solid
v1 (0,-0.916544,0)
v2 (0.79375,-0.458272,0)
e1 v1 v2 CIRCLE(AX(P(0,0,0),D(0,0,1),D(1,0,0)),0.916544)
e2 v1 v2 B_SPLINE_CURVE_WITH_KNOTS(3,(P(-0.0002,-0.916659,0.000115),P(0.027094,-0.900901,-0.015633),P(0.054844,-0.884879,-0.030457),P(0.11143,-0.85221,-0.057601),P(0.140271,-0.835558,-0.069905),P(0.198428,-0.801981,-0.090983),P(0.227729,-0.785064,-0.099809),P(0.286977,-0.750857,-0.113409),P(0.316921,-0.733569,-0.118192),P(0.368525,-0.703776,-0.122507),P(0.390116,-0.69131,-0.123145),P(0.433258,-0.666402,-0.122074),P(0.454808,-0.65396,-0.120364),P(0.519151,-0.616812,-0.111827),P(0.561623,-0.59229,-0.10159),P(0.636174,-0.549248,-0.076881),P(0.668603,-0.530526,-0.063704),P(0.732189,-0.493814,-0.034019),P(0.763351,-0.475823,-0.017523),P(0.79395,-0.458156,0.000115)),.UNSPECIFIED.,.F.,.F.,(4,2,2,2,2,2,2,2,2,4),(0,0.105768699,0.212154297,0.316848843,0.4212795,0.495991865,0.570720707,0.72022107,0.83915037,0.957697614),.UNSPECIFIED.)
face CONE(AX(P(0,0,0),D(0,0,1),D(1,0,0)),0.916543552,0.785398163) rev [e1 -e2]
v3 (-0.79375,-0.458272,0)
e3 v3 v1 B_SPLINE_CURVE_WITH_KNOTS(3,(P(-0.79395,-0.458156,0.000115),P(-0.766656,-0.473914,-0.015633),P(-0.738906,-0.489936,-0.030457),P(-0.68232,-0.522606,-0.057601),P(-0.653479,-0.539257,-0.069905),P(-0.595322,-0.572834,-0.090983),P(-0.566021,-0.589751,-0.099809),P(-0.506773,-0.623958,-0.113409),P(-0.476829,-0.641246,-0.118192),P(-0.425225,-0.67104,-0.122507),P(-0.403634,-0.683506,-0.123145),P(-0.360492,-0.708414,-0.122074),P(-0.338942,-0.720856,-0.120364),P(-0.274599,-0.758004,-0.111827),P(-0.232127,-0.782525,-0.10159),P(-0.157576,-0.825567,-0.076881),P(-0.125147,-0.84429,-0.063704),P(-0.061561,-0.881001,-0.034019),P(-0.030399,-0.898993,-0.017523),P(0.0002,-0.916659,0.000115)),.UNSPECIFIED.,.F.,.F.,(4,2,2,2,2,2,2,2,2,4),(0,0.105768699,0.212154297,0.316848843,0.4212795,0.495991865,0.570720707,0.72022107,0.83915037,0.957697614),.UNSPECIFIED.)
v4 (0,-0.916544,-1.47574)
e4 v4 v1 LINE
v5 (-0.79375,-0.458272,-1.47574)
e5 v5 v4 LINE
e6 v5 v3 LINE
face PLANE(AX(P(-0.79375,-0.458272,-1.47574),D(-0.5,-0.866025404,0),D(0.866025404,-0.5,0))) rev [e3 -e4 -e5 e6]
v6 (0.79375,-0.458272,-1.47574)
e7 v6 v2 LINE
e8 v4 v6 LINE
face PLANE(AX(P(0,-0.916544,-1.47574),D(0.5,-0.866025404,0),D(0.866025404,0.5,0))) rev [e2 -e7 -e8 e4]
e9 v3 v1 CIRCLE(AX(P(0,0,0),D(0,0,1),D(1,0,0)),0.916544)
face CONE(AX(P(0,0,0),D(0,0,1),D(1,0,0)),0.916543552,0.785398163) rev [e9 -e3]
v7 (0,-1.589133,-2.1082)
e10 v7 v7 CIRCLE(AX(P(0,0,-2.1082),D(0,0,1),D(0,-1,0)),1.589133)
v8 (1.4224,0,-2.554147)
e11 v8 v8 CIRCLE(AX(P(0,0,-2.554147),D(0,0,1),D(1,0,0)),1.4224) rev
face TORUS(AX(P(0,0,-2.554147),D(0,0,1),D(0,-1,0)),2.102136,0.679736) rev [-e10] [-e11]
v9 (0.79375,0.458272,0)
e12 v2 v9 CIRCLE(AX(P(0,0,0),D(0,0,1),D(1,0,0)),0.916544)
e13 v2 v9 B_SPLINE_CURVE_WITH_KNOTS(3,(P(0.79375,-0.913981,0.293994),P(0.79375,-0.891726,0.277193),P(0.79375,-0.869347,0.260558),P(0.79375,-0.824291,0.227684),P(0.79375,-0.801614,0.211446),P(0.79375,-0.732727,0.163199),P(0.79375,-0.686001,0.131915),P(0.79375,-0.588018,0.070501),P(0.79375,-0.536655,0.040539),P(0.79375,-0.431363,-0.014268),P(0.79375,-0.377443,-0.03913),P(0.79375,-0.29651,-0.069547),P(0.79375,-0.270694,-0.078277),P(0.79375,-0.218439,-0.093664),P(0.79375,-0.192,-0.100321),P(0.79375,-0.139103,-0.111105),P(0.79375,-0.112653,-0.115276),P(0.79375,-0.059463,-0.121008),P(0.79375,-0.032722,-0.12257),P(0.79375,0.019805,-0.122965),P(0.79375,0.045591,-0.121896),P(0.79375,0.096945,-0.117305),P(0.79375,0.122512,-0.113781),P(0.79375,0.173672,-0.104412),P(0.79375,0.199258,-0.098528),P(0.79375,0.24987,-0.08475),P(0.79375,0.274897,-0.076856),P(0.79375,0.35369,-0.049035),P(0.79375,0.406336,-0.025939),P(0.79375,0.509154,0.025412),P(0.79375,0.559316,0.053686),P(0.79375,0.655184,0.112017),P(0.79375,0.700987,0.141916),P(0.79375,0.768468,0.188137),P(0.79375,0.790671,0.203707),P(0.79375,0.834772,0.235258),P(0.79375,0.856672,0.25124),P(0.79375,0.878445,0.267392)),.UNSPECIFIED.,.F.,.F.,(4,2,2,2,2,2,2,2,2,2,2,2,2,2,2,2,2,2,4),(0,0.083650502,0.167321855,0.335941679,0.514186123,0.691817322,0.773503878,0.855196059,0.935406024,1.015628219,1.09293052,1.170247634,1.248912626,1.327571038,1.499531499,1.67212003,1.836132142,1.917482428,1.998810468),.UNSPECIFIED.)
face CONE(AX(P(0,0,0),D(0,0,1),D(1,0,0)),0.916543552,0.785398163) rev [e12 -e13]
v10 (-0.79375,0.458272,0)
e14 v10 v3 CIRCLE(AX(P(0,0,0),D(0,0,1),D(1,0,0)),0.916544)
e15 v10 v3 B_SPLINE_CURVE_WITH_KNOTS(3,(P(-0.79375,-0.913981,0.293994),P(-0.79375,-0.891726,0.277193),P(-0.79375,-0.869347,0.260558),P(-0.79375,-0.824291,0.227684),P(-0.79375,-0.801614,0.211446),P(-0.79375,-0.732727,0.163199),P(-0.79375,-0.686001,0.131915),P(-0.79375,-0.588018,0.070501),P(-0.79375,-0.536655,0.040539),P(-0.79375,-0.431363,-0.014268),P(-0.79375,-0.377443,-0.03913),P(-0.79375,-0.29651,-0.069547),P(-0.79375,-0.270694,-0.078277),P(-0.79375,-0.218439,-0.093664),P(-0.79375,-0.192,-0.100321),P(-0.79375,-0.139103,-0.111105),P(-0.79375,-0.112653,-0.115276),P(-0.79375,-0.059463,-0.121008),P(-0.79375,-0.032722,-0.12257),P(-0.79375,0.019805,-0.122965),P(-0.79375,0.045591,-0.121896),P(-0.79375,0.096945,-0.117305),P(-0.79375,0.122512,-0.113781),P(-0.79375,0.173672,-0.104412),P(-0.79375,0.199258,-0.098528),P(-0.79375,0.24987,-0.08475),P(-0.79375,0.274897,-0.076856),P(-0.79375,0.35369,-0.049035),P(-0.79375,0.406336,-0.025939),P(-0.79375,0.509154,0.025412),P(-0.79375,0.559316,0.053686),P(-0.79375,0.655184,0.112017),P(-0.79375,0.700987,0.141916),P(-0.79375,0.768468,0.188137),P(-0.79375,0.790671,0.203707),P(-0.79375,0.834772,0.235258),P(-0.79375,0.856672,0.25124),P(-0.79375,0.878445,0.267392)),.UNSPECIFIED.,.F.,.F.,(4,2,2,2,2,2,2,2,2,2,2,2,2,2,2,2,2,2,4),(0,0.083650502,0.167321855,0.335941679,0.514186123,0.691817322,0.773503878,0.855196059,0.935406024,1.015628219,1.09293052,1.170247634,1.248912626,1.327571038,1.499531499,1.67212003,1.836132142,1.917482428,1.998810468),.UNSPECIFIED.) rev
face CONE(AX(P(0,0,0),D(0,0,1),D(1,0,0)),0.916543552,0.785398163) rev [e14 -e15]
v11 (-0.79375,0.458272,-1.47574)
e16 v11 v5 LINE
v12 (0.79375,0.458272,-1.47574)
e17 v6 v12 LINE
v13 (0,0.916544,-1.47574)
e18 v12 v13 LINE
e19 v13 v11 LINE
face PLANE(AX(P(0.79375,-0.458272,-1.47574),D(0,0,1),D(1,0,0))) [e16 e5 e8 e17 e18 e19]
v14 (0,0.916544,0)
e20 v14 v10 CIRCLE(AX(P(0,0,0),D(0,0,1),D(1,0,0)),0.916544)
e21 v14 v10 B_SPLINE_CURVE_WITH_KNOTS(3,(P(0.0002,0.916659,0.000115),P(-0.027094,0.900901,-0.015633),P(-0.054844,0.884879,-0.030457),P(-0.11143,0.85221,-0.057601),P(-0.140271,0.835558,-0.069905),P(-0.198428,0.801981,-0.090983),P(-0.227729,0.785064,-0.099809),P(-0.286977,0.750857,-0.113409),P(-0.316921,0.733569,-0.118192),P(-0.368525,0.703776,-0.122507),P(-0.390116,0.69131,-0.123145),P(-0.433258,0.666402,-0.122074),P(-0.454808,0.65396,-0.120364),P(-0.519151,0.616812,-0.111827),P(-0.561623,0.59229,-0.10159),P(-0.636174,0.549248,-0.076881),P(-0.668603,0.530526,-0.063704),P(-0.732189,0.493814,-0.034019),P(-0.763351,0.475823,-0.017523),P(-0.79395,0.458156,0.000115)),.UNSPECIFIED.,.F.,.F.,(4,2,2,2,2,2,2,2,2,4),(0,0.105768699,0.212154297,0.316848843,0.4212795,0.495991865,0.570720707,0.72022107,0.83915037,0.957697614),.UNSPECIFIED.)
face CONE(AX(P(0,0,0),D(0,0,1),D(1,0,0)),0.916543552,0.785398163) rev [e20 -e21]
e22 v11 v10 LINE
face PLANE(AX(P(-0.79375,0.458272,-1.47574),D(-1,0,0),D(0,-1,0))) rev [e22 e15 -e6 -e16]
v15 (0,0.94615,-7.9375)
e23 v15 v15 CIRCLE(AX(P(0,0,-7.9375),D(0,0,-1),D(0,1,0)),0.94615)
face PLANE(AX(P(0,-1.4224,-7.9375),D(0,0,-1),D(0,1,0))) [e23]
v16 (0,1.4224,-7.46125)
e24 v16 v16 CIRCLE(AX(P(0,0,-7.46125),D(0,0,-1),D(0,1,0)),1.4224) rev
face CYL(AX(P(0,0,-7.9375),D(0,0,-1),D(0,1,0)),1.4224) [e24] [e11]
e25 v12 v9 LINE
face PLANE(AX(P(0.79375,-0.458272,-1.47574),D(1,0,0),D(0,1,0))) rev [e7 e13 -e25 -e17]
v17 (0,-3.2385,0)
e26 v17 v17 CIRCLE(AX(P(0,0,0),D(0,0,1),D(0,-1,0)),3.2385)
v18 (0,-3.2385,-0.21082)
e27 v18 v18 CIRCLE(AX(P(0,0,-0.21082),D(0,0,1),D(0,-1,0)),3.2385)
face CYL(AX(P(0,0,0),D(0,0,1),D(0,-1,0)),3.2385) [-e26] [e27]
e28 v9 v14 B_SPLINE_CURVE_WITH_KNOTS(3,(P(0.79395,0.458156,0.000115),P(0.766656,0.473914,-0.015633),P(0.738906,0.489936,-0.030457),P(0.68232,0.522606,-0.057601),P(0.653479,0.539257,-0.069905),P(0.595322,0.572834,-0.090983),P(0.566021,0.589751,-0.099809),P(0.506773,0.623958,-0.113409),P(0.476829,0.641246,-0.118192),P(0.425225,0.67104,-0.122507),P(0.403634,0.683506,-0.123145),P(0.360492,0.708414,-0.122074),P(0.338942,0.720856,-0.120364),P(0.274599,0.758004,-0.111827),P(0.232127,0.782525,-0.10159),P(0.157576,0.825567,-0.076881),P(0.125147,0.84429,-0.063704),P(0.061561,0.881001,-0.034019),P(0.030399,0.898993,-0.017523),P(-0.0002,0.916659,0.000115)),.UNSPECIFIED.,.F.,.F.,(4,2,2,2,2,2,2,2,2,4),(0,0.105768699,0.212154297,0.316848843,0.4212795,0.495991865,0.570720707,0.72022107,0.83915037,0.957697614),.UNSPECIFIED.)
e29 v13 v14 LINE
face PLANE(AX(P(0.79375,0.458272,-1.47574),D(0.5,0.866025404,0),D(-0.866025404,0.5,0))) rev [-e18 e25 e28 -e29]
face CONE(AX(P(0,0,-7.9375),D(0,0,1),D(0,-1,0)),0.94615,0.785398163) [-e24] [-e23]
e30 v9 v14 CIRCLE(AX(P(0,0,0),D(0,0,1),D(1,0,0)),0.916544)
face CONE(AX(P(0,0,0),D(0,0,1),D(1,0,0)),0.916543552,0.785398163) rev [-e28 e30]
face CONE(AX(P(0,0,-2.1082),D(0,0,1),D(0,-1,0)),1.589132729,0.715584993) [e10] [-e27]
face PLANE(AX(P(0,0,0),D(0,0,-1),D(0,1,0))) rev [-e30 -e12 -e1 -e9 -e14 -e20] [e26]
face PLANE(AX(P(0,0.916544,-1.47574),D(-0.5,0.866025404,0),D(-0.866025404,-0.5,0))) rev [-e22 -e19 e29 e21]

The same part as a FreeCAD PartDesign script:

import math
import FreeCAD as App
import Part
import Sketcher

V = App.Vector
Q = App.Units.Quantity


def edges_at(feature, points):
    """Names of the edges that pass closest to the given points."""
    edges = feature.Shape.Edges
    near = lambda p: min(range(len(edges)), key=lambda i: edges[i].distToShape(Part.Vertex(*p))[0])
    return sorted({f"Edge{near(p) + 1}" for p in points})

doc = App.newDocument("Part")
body = doc.addObject("PartDesign::Body", "Body")

sketch1 = body.newObject("Sketcher::SketchObject", "Sketch")
sketch1.AttachmentSupport = (doc.getObject("YZ_Plane"), [""])
sketch1.MapMode = "FlatFace"
sketch1.addGeometry([
    Part.LineSegment(V(1.4, 0, 0), V(0, 0, 0)),
    Part.LineSegment(V(0, 0, 0), V(0, -7.9, 0)),
    Part.LineSegment(V(0, -7.9, 0), V(1.4, -7.9, 0)),
    Part.LineSegment(V(1.4, -7.9, 0), V(1.4, 0, 0)),
], False)
sketch1.addConstraint([
    Sketcher.Constraint("Coincident", 0, 2, 1, 1),
    Sketcher.Constraint("Coincident", 1, 2, 2, 1),
    Sketcher.Constraint("Coincident", 2, 2, 3, 1),
    Sketcher.Constraint("Coincident", 3, 2, 0, 1),
    Sketcher.Constraint("Horizontal", 0),
    Sketcher.Constraint("Vertical", 1),
    Sketcher.Constraint("Horizontal", 2),
    Sketcher.Constraint("Vertical", 3),
    Sketcher.Constraint("Coincident", 0, 2, -1, 1),
    Sketcher.Constraint("DistanceX", 0, 2, 0, 1, Q("0.056 in")),
    Sketcher.Constraint("DistanceY", 1, 2, 1, 1, Q("0.3125 in")),
])
revolution = body.newObject("PartDesign::Revolution", "Revolution")
revolution.Profile = sketch1
revolution.ReferenceAxis = (sketch1, ["V_Axis"])
revolution.Angle = 360
doc.recompute()

chamfer = body.newObject("PartDesign::Chamfer", "Chamfer")
chamfer.Base = (revolution, edges_at(revolution, [(0, -1.422, -7.938)]))
chamfer.Size = 0.47625
body2 = doc.addObject("PartDesign::Body", "Body001")

sketch2 = body2.newObject("Sketcher::SketchObject", "Sketch001")
sketch2.AttachmentSupport = (doc.getObject("YZ_Plane001"), [""])
sketch2.MapMode = "FlatFace"
sketch2.addGeometry([
    Part.LineSegment(V(3.24, -0.21, 0), V(3.24, 0, 0)),
    Part.LineSegment(V(3.24, 0, 0), V(0, 0, 0)),
    Part.LineSegment(V(0, 0, 0), V(0, -2.55, 0)),
    Part.LineSegment(V(0, -2.55, 0), V(1.42, -2.55, 0)),
    Part.ArcOfCircle(Part.Circle(V(2.1, -2.55, 0), V(0, 0, 1), 0.68), math.radians(139), math.radians(180)),
    Part.LineSegment(V(1.59, -2.11, 0), V(3.24, -0.21, 0)),
], False)
sketch2.addConstraint([
    Sketcher.Constraint("Coincident", 0, 2, 1, 1),
    Sketcher.Constraint("Coincident", 1, 2, 2, 1),
    Sketcher.Constraint("Coincident", 2, 2, 3, 1),
    Sketcher.Constraint("Coincident", 3, 2, 4, 2),
    Sketcher.Constraint("Tangent", 4, 1, 5, 1),
    Sketcher.Constraint("Coincident", 5, 2, 0, 1),
    Sketcher.Constraint("Vertical", 0),
    Sketcher.Constraint("Horizontal", 1),
    Sketcher.Constraint("Vertical", 2),
    Sketcher.Constraint("Horizontal", 3),
    Sketcher.Constraint("Coincident", 1, 2, -1, 1),
    Sketcher.Constraint("Horizontal", 4, 3, 2, 2),
    Sketcher.Constraint("Angle", 5, Q("49 deg")),
    Sketcher.Constraint("DistanceX", 3, 1, 3, 2, Q("0.056 in")),
    Sketcher.Constraint("DistanceX", 1, 2, 1, 1, Q("0.1275 in")),
    Sketcher.Constraint("DistanceY", 0, 1, 0, 2, Q("0.0083 in")),
    Sketcher.Constraint("DistanceY", 4, 1, -1, 1, Q("0.083 in")),
])
revolution2 = body2.newObject("PartDesign::Revolution", "Revolution001")
revolution2.Profile = sketch2
revolution2.ReferenceAxis = (sketch2, ["V_Axis"])
revolution2.Angle = 360

sketch3 = body2.newObject("Sketcher::SketchObject", "Sketch002")
sketch3.AttachmentSupport = (doc.getObject("YZ_Plane001"), [""])
sketch3.MapMode = "FlatFace"
sketch3.addGeometry([
    Part.LineSegment(V(0, -2.6, 0), V(-1.4, -2.6, 0)),
    Part.LineSegment(V(-1.4, -2.6, 0), V(0, -4, 0)),
    Part.LineSegment(V(0, -4, 0), V(0, -2.6, 0)),
], False)
sketch3.addConstraint([
    Sketcher.Constraint("Coincident", 0, 2, 1, 1),
    Sketcher.Constraint("Coincident", 1, 2, 2, 1),
    Sketcher.Constraint("Coincident", 2, 2, 0, 1),
    Sketcher.Constraint("Horizontal", 0),
    Sketcher.Constraint("Vertical", 2),
    Sketcher.Constraint("PointOnObject", 1, 2, -2),
    Sketcher.Constraint("Equal", 0, 2),
    Sketcher.Constraint("DistanceX", 0, 2, 0, 1, Q("0.056 in")),
    Sketcher.Constraint("DistanceY", 0, 2, -1, 1, 2.554147),
])
revolution3 = body2.newObject("PartDesign::Revolution", "Revolution002")
revolution3.Profile = sketch3
revolution3.ReferenceAxis = (sketch3, ["V_Axis"])
revolution3.Angle = 360
doc.recompute()

boolean = body2.newObject("PartDesign::Boolean", "Boolean")
boolean.Type = "Fuse"
boolean.addObjects([body])

sketch4 = body2.newObject("Sketcher::SketchObject", "Sketch003")
sketch4.AttachmentSupport = (doc.getObject("XY_Plane001"), [""])
sketch4.MapMode = "FlatFace"
sketch4.addGeometry([
    Part.LineSegment(V(0.8, -0.5, 0), V(0.8, 0.5, 0)),
    Part.LineSegment(V(0.8, 0.5, 0), V(0, 0.9, 0)),
    Part.LineSegment(V(0, 0.9, 0), V(-0.8, 0.5, 0)),
    Part.LineSegment(V(-0.8, 0.5, 0), V(-0.8, -0.5, 0)),
    Part.LineSegment(V(-0.8, -0.5, 0), V(0, -0.9, 0)),
    Part.LineSegment(V(0, -0.9, 0), V(0.8, -0.5, 0)),
], False)
sketch4.addConstraint([
    Sketcher.Constraint("Coincident", 0, 2, 1, 1),
    Sketcher.Constraint("Coincident", 1, 2, 2, 1),
    Sketcher.Constraint("Coincident", 2, 2, 3, 1),
    Sketcher.Constraint("Coincident", 3, 2, 4, 1),
    Sketcher.Constraint("Coincident", 4, 2, 5, 1),
    Sketcher.Constraint("Coincident", 5, 2, 0, 1),
    Sketcher.Constraint("Vertical", 0),
    Sketcher.Constraint("Vertical", 3),
    Sketcher.Constraint("Symmetric", 0, 2, 3, 2, -1, 1),
    Sketcher.Constraint("Symmetric", 1, 2, 4, 2, -1, 1),
    Sketcher.Constraint("PointOnObject", 1, 2, -2),
    Sketcher.Constraint("Parallel", 2, 5),
    Sketcher.Constraint("Horizontal", 0, 2, 2, 2),
    Sketcher.Constraint("Angle", 1, Q("150 deg")),
    Sketcher.Constraint("DistanceX", -1, 1, 0, 2, Q("0.03125 in")),
    Sketcher.Constraint("DistanceY", 0, 1, 0, 2, 0.916544),
])
pocket1 = body2.newObject("PartDesign::Pocket", "Pocket")
pocket1.Profile = sketch4
pocket1.Length = Q("0.0581 in")

sketch5 = body2.newObject("Sketcher::SketchObject", "Sketch004")
sketch5.AttachmentSupport = (doc.getObject("YZ_Plane001"), [""])
sketch5.MapMode = "FlatFace"
sketch5.addGeometry([
    Part.LineSegment(V(0, 0, 0), V(-0.9, 0, 0)),
    Part.LineSegment(V(-0.9, 0, 0), V(0, -0.9, 0)),
    Part.LineSegment(V(0, -0.9, 0), V(0, 0, 0)),
], False)
sketch5.addConstraint([
    Sketcher.Constraint("Coincident", 0, 2, 1, 1),
    Sketcher.Constraint("Coincident", 1, 2, 2, 1),
    Sketcher.Constraint("Coincident", 2, 2, 0, 1),
    Sketcher.Constraint("Horizontal", 0),
    Sketcher.Constraint("Vertical", 2),
    Sketcher.Constraint("Coincident", 2, 2, -1, 1),
    Sketcher.Constraint("Equal", 0, 2),
    Sketcher.Constraint("Distance", 1, 1.296188),
])
groove = body2.newObject("PartDesign::Groove", "Groove")
groove.Profile = sketch5
groove.ReferenceAxis = (sketch5, ["V_Axis"])
groove.Angle = 360

doc.recompute()
